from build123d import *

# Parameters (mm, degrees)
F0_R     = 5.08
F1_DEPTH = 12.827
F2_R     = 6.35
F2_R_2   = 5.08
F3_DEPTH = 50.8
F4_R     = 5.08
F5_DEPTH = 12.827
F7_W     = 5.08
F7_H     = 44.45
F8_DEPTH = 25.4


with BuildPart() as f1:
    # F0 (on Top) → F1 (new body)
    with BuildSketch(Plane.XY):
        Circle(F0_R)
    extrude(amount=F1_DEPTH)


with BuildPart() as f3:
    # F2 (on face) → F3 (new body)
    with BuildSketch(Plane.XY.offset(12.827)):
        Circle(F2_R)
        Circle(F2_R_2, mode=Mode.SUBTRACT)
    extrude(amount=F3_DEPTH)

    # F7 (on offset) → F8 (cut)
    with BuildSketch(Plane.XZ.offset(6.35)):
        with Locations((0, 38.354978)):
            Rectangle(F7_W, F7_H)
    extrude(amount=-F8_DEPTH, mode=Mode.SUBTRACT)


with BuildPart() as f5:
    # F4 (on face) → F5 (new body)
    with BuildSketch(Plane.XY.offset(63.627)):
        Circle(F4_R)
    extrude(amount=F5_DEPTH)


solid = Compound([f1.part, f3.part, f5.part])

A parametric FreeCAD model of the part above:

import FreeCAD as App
import Part
import Sketcher
Q = App.Units.Quantity

doc = App.newDocument("Part")
body = doc.addObject("PartDesign::Body", "Body")

sketch1 = body.newObject("Sketcher::SketchObject", "Sketch")
sketch1.AttachmentSupport = (doc.getObject("XY_Plane"), [""])
sketch1.MapMode = "FlatFace"
sketch1.addGeometry(Part.Circle(App.Vector(0, 0, 0), App.Vector(0, 0, 1), 5), False)
sketch1.addConstraint([
    Sketcher.Constraint("Coincident", 0, 3, -1, 1),
    Sketcher.Constraint("Diameter", 0, Q("0.4 in")),
])
pad1 = body.newObject("PartDesign::Pad", "Pad")
pad1.Profile = sketch1
pad1.Length = Q("0.505 in")
body2 = doc.addObject("PartDesign::Body", "Body001")

sketch2 = body2.newObject("Sketcher::SketchObject", "Sketch001")
sketch2.AttachmentSupport = (doc.getObject("XY_Plane001"), [""])
sketch2.MapMode = "FlatFace"
sketch2.AttachmentOffset = App.Placement(App.Vector(0, 0, 0.505 * 25.4), App.Rotation())
sketch2.addGeometry([
    Part.Circle(App.Vector(0, 0, 0), App.Vector(0, 0, 1), 6),
    Part.Circle(App.Vector(0, 0, 0), App.Vector(0, 0, 1), 5),
], False)
sketch2.addConstraint([
    Sketcher.Constraint("Coincident", 0, 3, -1, 1),
    Sketcher.Constraint("Coincident", 1, 3, -1, 1),
    Sketcher.Constraint("Diameter", 0, Q("0.5 in")),
    Sketcher.Constraint("Diameter", 1, Q("0.4 in")),
])
pad2 = body2.newObject("PartDesign::Pad", "Pad001")
pad2.Profile = sketch2
pad2.Length = Q("2 in")

sketch3 = body2.newObject("Sketcher::SketchObject", "Sketch002")
sketch3.AttachmentSupport = (doc.getObject("XZ_Plane001"), [""])
sketch3.MapMode = "FlatFace"
sketch3.AttachmentOffset = App.Placement(App.Vector(0, 0, 0.25 * 25.4), App.Rotation())
sketch3.addGeometry([
    Part.LineSegment(App.Vector(-3, 61, 0), App.Vector(-3, 16, 0)),
    Part.LineSegment(App.Vector(-3, 16, 0), App.Vector(3, 16, 0)),
    Part.LineSegment(App.Vector(3, 16, 0), App.Vector(3, 61, 0)),
    Part.LineSegment(App.Vector(3, 61, 0), App.Vector(-3, 61, 0)),
], False)
sketch3.addConstraint([
    Sketcher.Constraint("Coincident", 0, 2, 1, 1),
    Sketcher.Constraint("Coincident", 1, 2, 2, 1),
    Sketcher.Constraint("Coincident", 2, 2, 3, 1),
    Sketcher.Constraint("Coincident", 3, 2, 0, 1),
    Sketcher.Constraint("Vertical", 0),
    Sketcher.Constraint("Horizontal", 1),
    Sketcher.Constraint("Vertical", 2),
    Sketcher.Constraint("Horizontal", 3),
    Sketcher.Constraint("DistanceX", 1, 1, 1, 2, Q("0.2 in")),
    Sketcher.Constraint("DistanceY", 0, 2, 0, 1, Q("1.75 in")),
    Sketcher.Constraint("DistanceX", 0, 2, -1, 1, Q("0.1 in")),
    Sketcher.Constraint("DistanceY", -1, 1, 0, 2, Q("16.129978 mm")),
])
pocket1 = body2.newObject("PartDesign::Pocket", "Pocket")
pocket1.Profile = sketch3
pocket1.Length = Q("1 in")
body3 = doc.addObject("PartDesign::Body", "Body002")

sketch4 = body3.newObject("Sketcher::SketchObject", "Sketch003")
sketch4.AttachmentSupport = (doc.getObject("XY_Plane002"), [""])
sketch4.MapMode = "FlatFace"
sketch4.AttachmentOffset = App.Placement(App.Vector(0, 0, 2.505 * 25.4), App.Rotation())
sketch4.addGeometry(Part.Circle(App.Vector(0, 0, 0), App.Vector(0, 0, 1), 5), False)
sketch4.addConstraint([
    Sketcher.Constraint("Coincident", 0, 3, -1, 1),
    Sketcher.Constraint("Diameter", 0, Q("0.4 in")),
])
pad3 = body3.newObject("PartDesign::Pad", "Pad002")
pad3.Profile = sketch4
pad3.Length = Q("0.505 in")

doc.recompute()
